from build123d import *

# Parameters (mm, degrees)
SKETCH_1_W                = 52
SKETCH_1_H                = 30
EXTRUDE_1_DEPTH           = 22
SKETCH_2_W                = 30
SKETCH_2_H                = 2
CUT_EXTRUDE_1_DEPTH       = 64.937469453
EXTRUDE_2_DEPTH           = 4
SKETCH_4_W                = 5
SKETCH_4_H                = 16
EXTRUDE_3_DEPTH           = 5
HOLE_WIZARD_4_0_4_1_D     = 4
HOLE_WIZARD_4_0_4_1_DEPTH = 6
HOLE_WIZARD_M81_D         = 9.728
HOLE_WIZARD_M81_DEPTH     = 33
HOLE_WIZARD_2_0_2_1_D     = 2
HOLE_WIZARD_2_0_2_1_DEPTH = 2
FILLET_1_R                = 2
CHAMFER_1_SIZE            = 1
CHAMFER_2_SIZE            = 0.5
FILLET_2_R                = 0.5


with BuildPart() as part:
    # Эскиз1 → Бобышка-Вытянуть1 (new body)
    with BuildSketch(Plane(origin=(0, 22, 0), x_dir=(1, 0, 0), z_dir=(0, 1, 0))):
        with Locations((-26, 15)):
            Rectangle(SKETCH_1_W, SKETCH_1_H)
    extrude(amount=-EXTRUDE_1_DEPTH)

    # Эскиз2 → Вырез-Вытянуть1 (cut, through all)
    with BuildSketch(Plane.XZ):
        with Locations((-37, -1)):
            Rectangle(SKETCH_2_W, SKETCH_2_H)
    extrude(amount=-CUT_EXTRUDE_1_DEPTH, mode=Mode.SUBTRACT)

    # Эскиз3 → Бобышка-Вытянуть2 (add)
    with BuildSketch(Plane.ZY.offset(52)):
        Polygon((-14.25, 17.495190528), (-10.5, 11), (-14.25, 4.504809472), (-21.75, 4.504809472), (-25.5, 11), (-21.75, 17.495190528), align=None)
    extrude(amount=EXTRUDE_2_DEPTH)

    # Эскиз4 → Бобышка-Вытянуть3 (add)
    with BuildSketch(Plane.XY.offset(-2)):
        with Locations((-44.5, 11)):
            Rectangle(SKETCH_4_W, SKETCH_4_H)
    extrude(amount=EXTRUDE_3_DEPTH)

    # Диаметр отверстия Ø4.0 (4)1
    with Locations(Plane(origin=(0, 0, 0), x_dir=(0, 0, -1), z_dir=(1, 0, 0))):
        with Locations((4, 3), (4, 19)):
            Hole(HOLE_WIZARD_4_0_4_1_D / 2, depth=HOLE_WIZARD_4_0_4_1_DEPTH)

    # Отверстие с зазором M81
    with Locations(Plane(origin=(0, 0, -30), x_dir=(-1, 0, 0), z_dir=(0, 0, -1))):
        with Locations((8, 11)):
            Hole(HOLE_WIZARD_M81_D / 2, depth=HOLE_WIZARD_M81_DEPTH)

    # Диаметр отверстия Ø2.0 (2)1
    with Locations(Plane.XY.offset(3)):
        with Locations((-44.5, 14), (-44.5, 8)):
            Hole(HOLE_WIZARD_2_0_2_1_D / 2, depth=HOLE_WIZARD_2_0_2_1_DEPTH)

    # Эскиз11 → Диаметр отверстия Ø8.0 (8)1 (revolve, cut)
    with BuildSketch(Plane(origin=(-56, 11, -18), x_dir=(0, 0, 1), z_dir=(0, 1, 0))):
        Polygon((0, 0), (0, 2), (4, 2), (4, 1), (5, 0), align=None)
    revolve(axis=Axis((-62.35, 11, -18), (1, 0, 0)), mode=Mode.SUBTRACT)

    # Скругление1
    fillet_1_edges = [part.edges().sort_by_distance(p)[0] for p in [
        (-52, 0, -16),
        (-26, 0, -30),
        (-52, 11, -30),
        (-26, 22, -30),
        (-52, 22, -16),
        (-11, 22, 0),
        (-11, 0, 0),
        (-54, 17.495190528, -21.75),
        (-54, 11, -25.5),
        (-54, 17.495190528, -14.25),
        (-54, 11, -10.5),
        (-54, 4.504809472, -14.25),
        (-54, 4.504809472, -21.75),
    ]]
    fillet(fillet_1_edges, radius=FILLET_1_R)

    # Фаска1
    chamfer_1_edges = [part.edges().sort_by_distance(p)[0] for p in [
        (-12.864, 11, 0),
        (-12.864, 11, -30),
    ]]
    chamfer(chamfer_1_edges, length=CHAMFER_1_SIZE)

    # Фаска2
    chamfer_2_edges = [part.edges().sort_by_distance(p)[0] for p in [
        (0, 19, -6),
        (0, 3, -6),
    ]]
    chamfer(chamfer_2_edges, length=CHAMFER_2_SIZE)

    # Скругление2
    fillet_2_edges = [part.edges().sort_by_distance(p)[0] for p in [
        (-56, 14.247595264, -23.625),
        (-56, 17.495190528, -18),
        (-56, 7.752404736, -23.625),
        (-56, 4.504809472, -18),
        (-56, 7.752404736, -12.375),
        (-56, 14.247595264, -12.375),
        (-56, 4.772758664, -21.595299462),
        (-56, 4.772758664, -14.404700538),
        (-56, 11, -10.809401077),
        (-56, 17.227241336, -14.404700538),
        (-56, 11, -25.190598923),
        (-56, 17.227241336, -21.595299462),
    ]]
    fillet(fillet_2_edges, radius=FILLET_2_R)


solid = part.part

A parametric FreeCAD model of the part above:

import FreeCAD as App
import Part
import Sketcher
from FreeCAD import Vector
Q = App.Units.Quantity


def edges_at(feature, points):
    """Names of the edges that pass closest to the given points."""
    edges = feature.Shape.Edges
    near = lambda p: min(range(len(edges)), key=lambda i: edges[i].distToShape(Part.Vertex(*p))[0])
    return sorted({f"Edge{near(p) + 1}" for p in points})


def add_polygon(sketch, points):
    """Adds a closed chain of lines whose ends are joined by coincident constraints."""
    first, n = sketch.GeometryCount, len(points)
    for a, b in zip(points, points[1:] + points[:1]):
        sketch.addGeometry(Part.LineSegment(App.Vector(*a, 0), App.Vector(*b, 0)), False)
    for i in range(n):
        sketch.addConstraint(Sketcher.Constraint("Coincident", first + i, 2, first + (i + 1) % n, 1))

doc = App.newDocument("Part")
params = doc.addObject("Spreadsheet::Sheet", "Params")
for row, (alias, value) in enumerate([
    ("sketch1_width", "52 mm"),
    ("sketch1_height", "30 mm"),
    ("pad1_length", "22 mm"),
    ("sketch2_width", "30 mm"),
    ("sketch2_height", "2 mm"),
    ("sketch3_height", "7.5 mm"),
    ("pad2_length", "4 mm"),
    ("sketch4_width", "5 mm"),
    ("sketch4_height", "16 mm"),
    ("pad3_length", "5 mm"),
    ("sketch5_diameter", "4 mm"),
    ("hole_diameter", "4 mm"),
    ("hole_depth", "6 mm"),
    ("hole2_diameter", "9.728 mm"),
    ("hole2_depth", "33 mm"),
    ("sketch7_diameter", "2 mm"),
    ("hole3_diameter", "2 mm"),
    ("hole3_depth", "2 mm"),
    ("sketch8_width", "2 mm"),
    ("sketch8_width2", "1 mm"),
    ("sketch8_height", "5 mm"),
    ("sketch8_height2", "4 mm"),
    ("groove_angle", "360 deg"),
    ("fillet_radius", "2 mm"),
    ("chamfer_size", "1 mm"),
    ("chamfer2_size", "0.5 mm"),
    ("fillet2_radius", "0.5 mm"),
], start=1):
    params.set(f"A{row}", alias)
    params.set(f"B{row}", "=" + value)
    params.setAlias(f"B{row}", alias)

body = doc.addObject("PartDesign::Body", "Body")

# Sketch on XZ plane
sketch1 = body.newObject("Sketcher::SketchObject", "Sketch")
sketch1.AttachmentSupport = (doc.getObject("XZ_Plane"), [""])
sketch1.MapMode = "FlatFace"
sketch1.AttachmentOffset = App.Placement(Vector(0, 0, -22), App.Rotation())
add_polygon(sketch1, [(-52, -30), (-52, 0), (0, 0), (0, -30)])  # lines 0-3
sketch1.addConstraint([
    Sketcher.Constraint("Vertical", 0),
    Sketcher.Constraint("Horizontal", 1),
    Sketcher.Constraint("Vertical", 2),
    Sketcher.Constraint("Horizontal", 3),
    Sketcher.Constraint("Coincident", 1, 2, -1, 1),
    Sketcher.Constraint("DistanceX", 1, 1, 1, 2, 52.0),
    Sketcher.Constraint("DistanceY", 0, 1, 0, 2, 30.0),
])
sketch1.setExpression("Constraints[9]", "Params.sketch1_width")
sketch1.setExpression("Constraints[10]", "Params.sketch1_height")
pad1 = body.newObject("PartDesign::Pad", "Pad")
pad1.Profile = sketch1
pad1.setExpression("Length", "Params.pad1_length")

# Sketch on XZ plane
sketch2 = body.newObject("Sketcher::SketchObject", "Sketch001")
sketch2.AttachmentSupport = (doc.getObject("XZ_Plane"), [""])
sketch2.MapMode = "FlatFace"
add_polygon(sketch2, [(-52, 0), (-52, -2), (-22, -2), (-22, 0)])  # lines 0-3
sketch2.addConstraint([
    Sketcher.Constraint("Vertical", 0),
    Sketcher.Constraint("Horizontal", 1),
    Sketcher.Constraint("Vertical", 2),
    Sketcher.Constraint("Horizontal", 3),
    Sketcher.Constraint("PointOnObject", 2, 2, -1),
    Sketcher.Constraint("DistanceX", 1, 1, 1, 2, 30.0),
    Sketcher.Constraint("DistanceY", 0, 2, 0, 1, 2.0),
    Sketcher.Constraint("DistanceX", 0, 2, -1, 1, 52.0),
])
sketch2.setExpression("Constraints[9]", "Params.sketch2_width")
sketch2.setExpression("Constraints[10]", "Params.sketch2_height")
pocket1 = body.newObject("PartDesign::Pocket", "Pocket")
pocket1.Profile = sketch2
pocket1.Type = "ThroughAll"

# Sketch on YZ plane
sketch3 = body.newObject("Sketcher::SketchObject", "Sketch002")
sketch3.AttachmentSupport = (doc.getObject("YZ_Plane"), [""])
sketch3.MapMode = "FlatFace"
sketch3.AttachmentOffset = App.Placement(Vector(0, 0, -52), App.Rotation())
add_polygon(sketch3, [(11, -10), (17, -14), (17, -22), (11, -26), (5, -22), (5, -14)])  # lines 0-5
sketch3.addConstraint([
    Sketcher.Constraint("Vertical", 1),
    Sketcher.Constraint("Vertical", 4),
    Sketcher.Constraint("Parallel", 0, 3),
    Sketcher.Constraint("Parallel", 2, 5),
    Sketcher.Constraint("Horizontal", 1, 2, 3, 2),
    Sketcher.Constraint("Horizontal", 0, 2, 4, 2),
    Sketcher.Constraint("Vertical", 2, 2, 5, 2),
    Sketcher.Constraint("Angle", 0, Q("-30 deg")),
    Sketcher.Constraint("DistanceY", 1, 2, 1, 1, 7.5),
    Sketcher.Constraint("DistanceX", -1, 1, 2, 2, 11.0),
    Sketcher.Constraint("DistanceY", 2, 2, 5, 2, 15.0),
    Sketcher.Constraint("DistanceY", 2, 2, -1, 1, 25.5),
])
sketch3.setExpression("Constraints[14]", "Params.sketch3_height")
pad2 = body.newObject("PartDesign::Pad", "Pad001")
pad2.Profile = sketch3
pad2.setExpression("Length", "Params.pad2_length")
pad2.Reversed = True

# Sketch on XY plane
sketch4 = body.newObject("Sketcher::SketchObject", "Sketch003")
sketch4.AttachmentSupport = (doc.getObject("XY_Plane"), [""])
sketch4.MapMode = "FlatFace"
sketch4.AttachmentOffset = App.Placement(Vector(0, 0, -2), App.Rotation())
add_polygon(sketch4, [(-47, 19), (-47, 3), (-42, 3), (-42, 19)])  # lines 0-3
sketch4.addConstraint([
    Sketcher.Constraint("Vertical", 0),
    Sketcher.Constraint("Horizontal", 1),
    Sketcher.Constraint("Vertical", 2),
    Sketcher.Constraint("Horizontal", 3),
    Sketcher.Constraint("DistanceX", 1, 1, 1, 2, 5.0),
    Sketcher.Constraint("DistanceY", 0, 2, 0, 1, 16.0),
    Sketcher.Constraint("DistanceX", 0, 2, -1, 1, 47.0),
    Sketcher.Constraint("DistanceY", -1, 1, 0, 2, 3.0),
])
sketch4.setExpression("Constraints[8]", "Params.sketch4_width")
sketch4.setExpression("Constraints[9]", "Params.sketch4_height")
pad3 = body.newObject("PartDesign::Pad", "Pad002")
pad3.Profile = sketch4
pad3.setExpression("Length", "Params.pad3_length")

# Sketch on YZ plane
sketch5 = body.newObject("Sketcher::SketchObject", "Sketch004")
sketch5.AttachmentSupport = (doc.getObject("YZ_Plane"), [""])
sketch5.MapMode = "FlatFace"
sketch5.addGeometry([
    Part.Circle(Vector(3, -4, 0), Vector(0, 0, 1), 2),
    Part.Circle(Vector(19, -4, 0), Vector(0, 0, 1), 2),
], False)
sketch5.addConstraint([
    Sketcher.Constraint("Equal", 0, 1),
    Sketcher.Constraint("Horizontal", 0, 3, 1, 3),
    Sketcher.Constraint("Diameter", 0, 4.0),
    Sketcher.Constraint("DistanceX", -1, 1, 0, 3, 3.0),
    Sketcher.Constraint("DistanceY", 0, 3, -1, 1, 4.0),
    Sketcher.Constraint("DistanceX", -1, 1, 1, 3, 19.0),
])
sketch5.setExpression("Constraints[2]", "Params.sketch5_diameter")
doc.recompute()
hole = body.newObject("PartDesign::Hole", "Hole")
hole.Profile = sketch5
hole.ThreadType = "None"
hole.setExpression("Diameter", "Params.hole_diameter")
hole.DepthType = "Dimension"
hole.setExpression("Depth", "Params.hole_depth")
hole.DrillPoint = "Flat"

# Sketch on XY plane
sketch6 = body.newObject("Sketcher::SketchObject", "Sketch005")
sketch6.AttachmentSupport = (doc.getObject("XY_Plane"), [""])
sketch6.MapMode = "FlatFace"
sketch6.AttachmentOffset = App.Placement(Vector(0, 0, -30), App.Rotation())
sketch6.addGeometry(Part.Circle(Vector(-8, 11, 0), Vector(0, 0, 1), 4.9), False)
sketch6.addConstraint([
    Sketcher.Constraint("Diameter", 0, 9.728),
    Sketcher.Constraint("DistanceX", 0, 3, -1, 1, 8.0),
    Sketcher.Constraint("DistanceY", -1, 1, 0, 3, 11.0),
])
doc.recompute()
hole2 = body.newObject("PartDesign::Hole", "Hole001")
hole2.Profile = sketch6
hole2.ThreadType = "None"
hole2.setExpression("Diameter", "Params.hole2_diameter")
hole2.DepthType = "Dimension"
hole2.setExpression("Depth", "Params.hole2_depth")
hole2.DrillPoint = "Flat"
hole2.Reversed = True

# Sketch on XY plane
sketch7 = body.newObject("Sketcher::SketchObject", "Sketch006")
sketch7.AttachmentSupport = (doc.getObject("XY_Plane"), [""])
sketch7.MapMode = "FlatFace"
sketch7.AttachmentOffset = App.Placement(Vector(0, 0, 3), App.Rotation())
sketch7.addGeometry([
    Part.Circle(Vector(-44.5, 14, 0), Vector(0, 0, 1), 1),
    Part.Circle(Vector(-44.5, 8, 0), Vector(0, 0, 1), 1),
], False)
sketch7.addConstraint([
    Sketcher.Constraint("Equal", 0, 1),
    Sketcher.Constraint("Vertical", 0, 3, 1, 3),
    Sketcher.Constraint("Diameter", 0, 2.0),
    Sketcher.Constraint("DistanceY", -1, 1, 0, 3, 14.0),
    Sketcher.Constraint("DistanceY", -1, 1, 1, 3, 8.0),
    Sketcher.Constraint("DistanceX", 0, 3, -1, 1, 44.5),
])
sketch7.setExpression("Constraints[2]", "Params.sketch7_diameter")
doc.recompute()
hole3 = body.newObject("PartDesign::Hole", "Hole002")
hole3.Profile = sketch7
hole3.ThreadType = "None"
hole3.setExpression("Diameter", "Params.hole3_diameter")
hole3.DepthType = "Dimension"
hole3.setExpression("Depth", "Params.hole3_depth")
hole3.DrillPoint = "Flat"

# Sketch on XZ plane
sketch8 = body.newObject("Sketcher::SketchObject", "Sketch007")
sketch8.AttachmentSupport = (doc.getObject("XZ_Plane"), [""])
sketch8.MapMode = "FlatFace"
sketch8.AttachmentOffset = App.Placement(Vector(0, 0, -11), App.Rotation())
add_polygon(sketch8, [(-54, -18), (-56, -18), (-56, -13), (-55, -14), (-54, -14)])  # lines 0-4
sketch8.addGeometry(Part.LineSegment(Vector(-56, -18, 0), Vector(-54, -18, 0)), True)  # axis
sketch8.addConstraint([
    Sketcher.Constraint("Horizontal", 0),
    Sketcher.Constraint("Vertical", 1),
    Sketcher.Constraint("Horizontal", 3),
    Sketcher.Constraint("Vertical", 4),
    Sketcher.Constraint("Horizontal", 5),
    Sketcher.Constraint("Coincident", 5, 1, 0, 2),
    Sketcher.Constraint("Vertical", 3, 2, 5, 2),
    Sketcher.Constraint("DistanceX", 0, 2, 0, 1, 2.0),
    Sketcher.Constraint("DistanceX", 3, 1, 3, 2, 1.0),
    Sketcher.Constraint("DistanceY", 1, 1, 1, 2, 5.0),
    Sketcher.Constraint("DistanceY", 4, 2, 4, 1, 4.0),
    Sketcher.Constraint("DistanceX", 0, 2, -1, 1, 56.0),
    Sketcher.Constraint("DistanceY", 0, 2, -1, 1, 18.0),
])
sketch8.setExpression("Constraints[12]", "Params.sketch8_width")
sketch8.setExpression("Constraints[13]", "Params.sketch8_width2")
sketch8.setExpression("Constraints[14]", "Params.sketch8_height")
sketch8.setExpression("Constraints[15]", "Params.sketch8_height2")
groove = body.newObject("PartDesign::Groove", "Groove")
groove.Profile = sketch8
groove.ReferenceAxis = (sketch8, ["Axis0"])
groove.setExpression("Angle", "Params.groove_angle")
doc.recompute()

fillet = body.newObject("PartDesign::Fillet", "Fillet")
fillet.Base = (groove, edges_at(groove, [
    (-52, 0, -16),
    (-26, 0, -30),
    (-52, 11, -30),
    (-26, 22, -30),
    (-52, 22, -16),
    (-11, 22, 0),
    (-11, 0, 0),
    (-54, 17.495, -21.75),
    (-54, 11, -25.5),
    (-54, 17.495, -14.25),
    (-54, 11, -10.5),
    (-54, 4.505, -14.25),
    (-54, 4.505, -21.75),
]))
fillet.setExpression("Radius", "Params.fillet_radius")
doc.recompute()

chamfer = body.newObject("PartDesign::Chamfer", "Chamfer")
chamfer.Base = (fillet, edges_at(fillet, [(-12.864, 11, 0), (-12.864, 11, -30)]))
chamfer.setExpression("Size", "Params.chamfer_size")
doc.recompute()

chamfer2 = body.newObject("PartDesign::Chamfer", "Chamfer001")
chamfer2.Base = (chamfer, edges_at(chamfer, [(0, 19, -6), (0, 3, -6)]))
chamfer2.setExpression("Size", "Params.chamfer2_size")
doc.recompute()

fillet2 = body.newObject("PartDesign::Fillet", "Fillet001")
fillet2.Base = (chamfer2, edges_at(chamfer2, [
    (-56, 14.248, -23.625),
    (-56, 17.495, -18),
    (-56, 7.752, -23.625),
    (-56, 4.505, -18),
    (-56, 7.752, -12.375),
    (-56, 14.248, -12.375),
    (-56, 4.773, -21.595),
    (-56, 4.773, -14.405),
    (-56, 11, -10.809),
    (-56, 17.227, -14.405),
    (-56, 11, -25.191),
    (-56, 17.227, -21.595),
]))
fillet2.setExpression("Radius", "Params.fillet2_radius")

doc.recompute()
